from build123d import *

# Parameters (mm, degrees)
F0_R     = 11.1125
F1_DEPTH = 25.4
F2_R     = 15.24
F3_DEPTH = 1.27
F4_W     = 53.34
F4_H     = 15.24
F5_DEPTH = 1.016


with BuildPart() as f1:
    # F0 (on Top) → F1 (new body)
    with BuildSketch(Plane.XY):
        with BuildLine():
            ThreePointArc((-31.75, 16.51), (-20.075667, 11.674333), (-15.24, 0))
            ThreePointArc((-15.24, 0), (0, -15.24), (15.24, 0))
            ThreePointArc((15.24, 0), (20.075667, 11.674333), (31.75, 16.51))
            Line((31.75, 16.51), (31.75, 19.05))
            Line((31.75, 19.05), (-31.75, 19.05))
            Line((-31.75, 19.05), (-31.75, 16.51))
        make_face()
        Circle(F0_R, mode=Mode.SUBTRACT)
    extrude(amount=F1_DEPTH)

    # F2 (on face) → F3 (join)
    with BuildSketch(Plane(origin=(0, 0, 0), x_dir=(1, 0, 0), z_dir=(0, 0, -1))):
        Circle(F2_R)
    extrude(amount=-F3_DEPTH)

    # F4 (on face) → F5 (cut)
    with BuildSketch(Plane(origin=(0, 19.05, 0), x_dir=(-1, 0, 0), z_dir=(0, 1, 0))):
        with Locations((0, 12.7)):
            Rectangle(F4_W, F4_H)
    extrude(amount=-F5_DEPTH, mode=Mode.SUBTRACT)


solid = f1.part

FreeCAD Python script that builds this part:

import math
import FreeCAD as App
import Part
import Sketcher

V = App.Vector
Q = App.Units.Quantity

doc = App.newDocument("Part")
body = doc.addObject("PartDesign::Body", "Body")

# Sketch on XY plane
sketch1 = doc.addObject("Sketcher::SketchObject", "Sketch")
body.addObject(sketch1)
sketch1.AttachmentSupport = (doc.XY_Plane, [""])
sketch1.MapMode = "FlatFace"
sketch1.addGeometry([
    Part.ArcOfCircle(Part.Circle(V(-31.75, 0, 0), V(0, 0, 1), 16.51), math.radians(-0.000001), math.radians(90.000001)),  # 0
    Part.ArcOfCircle(Part.Circle(V(0, 0, 0), V(0, 0, 1), 15.24), math.radians(180), math.radians(360)),  # 1
    Part.ArcOfCircle(Part.Circle(V(31.75, 0, 0), V(0, 0, 1), 16.51), math.radians(89.999999), math.radians(180.000001)),  # 2
    Part.LineSegment(V(31.75, 16.51, 0), V(31.75, 19.05, 0)),  # 3
    Part.LineSegment(V(31.75, 19.05, 0), V(-31.75, 19.05, 0)),  # 4
    Part.LineSegment(V(-31.75, 19.05, 0), V(-31.75, 16.51, 0)),  # 5
    Part.Circle(V(0, 0, 0), V(0, 0, 1), 11.1125),  # 6
], False)
sketch1.addConstraint([
    Sketcher.Constraint("Tangent", 0, 1, 1, 1),
    Sketcher.Constraint("Tangent", 1, 2, 2, 2),
    Sketcher.Constraint("Coincident", 2, 1, 3, 1),
    Sketcher.Constraint("Coincident", 3, 2, 4, 1),
    Sketcher.Constraint("Coincident", 4, 2, 5, 1),
    Sketcher.Constraint("Coincident", 5, 2, 0, 2),
    Sketcher.Constraint("Vertical", 3),
    Sketcher.Constraint("Horizontal", 4),
    Sketcher.Constraint("Vertical", 5),
    Sketcher.Constraint("Coincident", 1, 3, -1, 1),
    Sketcher.Constraint("Coincident", 6, 3, -1, 1),
    Sketcher.Constraint("Equal", 0, 2),
    Sketcher.Constraint("Symmetric", 2, 1, 5, 2, -2),
    Sketcher.Constraint("PointOnObject", 0, 3, -1),
    Sketcher.Constraint("Vertical", 0, 3, 4, 2),
    Sketcher.Constraint("Radius", 1, Q("0.6 in")),
    Sketcher.Constraint("Radius", 0, Q("0.65 in")),
    Sketcher.Constraint("Diameter", 6, Q("0.875 in")),
    Sketcher.Constraint("DistanceY", 3, 1, 3, 2, Q("0.1 in")),
])
pad1 = doc.addObject("PartDesign::Pad", "Pad")
body.addObject(pad1)
pad1.Profile = sketch1
pad1.Length = Q("1 in")

# Sketch on XY plane
sketch2 = doc.addObject("Sketcher::SketchObject", "Sketch001")
body.addObject(sketch2)
sketch2.AttachmentSupport = (doc.XY_Plane, [""])
sketch2.MapMode = "FlatFace"
sketch2.addGeometry(Part.Circle(V(0, 0, 0), V(0, 0, 1), 15.24), False)
sketch2.addConstraint([
    Sketcher.Constraint("Coincident", 0, 3, -1, 1),
    Sketcher.Constraint("Diameter", 0, Q("1.2 in")),
])
pad2 = doc.addObject("PartDesign::Pad", "Pad001")
body.addObject(pad2)
pad2.Profile = sketch2
pad2.Length = Q("0.05 in")

# Sketch on XZ plane
sketch3 = doc.addObject("Sketcher::SketchObject", "Sketch002")
body.addObject(sketch3)
sketch3.AttachmentSupport = (doc.XZ_Plane, [""])
sketch3.MapMode = "FlatFace"
sketch3.AttachmentOffset = App.Placement(V(0, 0, -0.75 * 25.4), App.Rotation())
sketch3.addGeometry([
    Part.LineSegment(V(26.67, 20.32, 0), V(26.67, 5.08, 0)),
    Part.LineSegment(V(26.67, 5.08, 0), V(-26.67, 5.08, 0)),
    Part.LineSegment(V(-26.67, 5.08, 0), V(-26.67, 20.32, 0)),
    Part.LineSegment(V(-26.67, 20.32, 0), V(26.67, 20.32, 0)),
], False)
sketch3.addConstraint([
    Sketcher.Constraint("Coincident", 0, 2, 1, 1),
    Sketcher.Constraint("Coincident", 1, 2, 2, 1),
    Sketcher.Constraint("Coincident", 2, 2, 3, 1),
    Sketcher.Constraint("Coincident", 3, 2, 0, 1),
    Sketcher.Constraint("Vertical", 0),
    Sketcher.Constraint("Horizontal", 1),
    Sketcher.Constraint("Vertical", 2),
    Sketcher.Constraint("Horizontal", 3),
    Sketcher.Constraint("DistanceX", 1, 2, 1, 1, Q("2.1 in")),
    Sketcher.Constraint("DistanceY", 0, 2, 0, 1, Q("0.6 in")),
    Sketcher.Constraint("DistanceY", -1, 1, 0, 2, Q("0.2 in")),
    Sketcher.Constraint("DistanceX", -1, 1, 0, 2, Q("1.05 in")),
])
pocket1 = doc.addObject("PartDesign::Pocket", "Pocket")
body.addObject(pocket1)
pocket1.Profile = sketch3
pocket1.Length = Q("0.04 in")
pocket1.Reversed = True

doc.recompute()
